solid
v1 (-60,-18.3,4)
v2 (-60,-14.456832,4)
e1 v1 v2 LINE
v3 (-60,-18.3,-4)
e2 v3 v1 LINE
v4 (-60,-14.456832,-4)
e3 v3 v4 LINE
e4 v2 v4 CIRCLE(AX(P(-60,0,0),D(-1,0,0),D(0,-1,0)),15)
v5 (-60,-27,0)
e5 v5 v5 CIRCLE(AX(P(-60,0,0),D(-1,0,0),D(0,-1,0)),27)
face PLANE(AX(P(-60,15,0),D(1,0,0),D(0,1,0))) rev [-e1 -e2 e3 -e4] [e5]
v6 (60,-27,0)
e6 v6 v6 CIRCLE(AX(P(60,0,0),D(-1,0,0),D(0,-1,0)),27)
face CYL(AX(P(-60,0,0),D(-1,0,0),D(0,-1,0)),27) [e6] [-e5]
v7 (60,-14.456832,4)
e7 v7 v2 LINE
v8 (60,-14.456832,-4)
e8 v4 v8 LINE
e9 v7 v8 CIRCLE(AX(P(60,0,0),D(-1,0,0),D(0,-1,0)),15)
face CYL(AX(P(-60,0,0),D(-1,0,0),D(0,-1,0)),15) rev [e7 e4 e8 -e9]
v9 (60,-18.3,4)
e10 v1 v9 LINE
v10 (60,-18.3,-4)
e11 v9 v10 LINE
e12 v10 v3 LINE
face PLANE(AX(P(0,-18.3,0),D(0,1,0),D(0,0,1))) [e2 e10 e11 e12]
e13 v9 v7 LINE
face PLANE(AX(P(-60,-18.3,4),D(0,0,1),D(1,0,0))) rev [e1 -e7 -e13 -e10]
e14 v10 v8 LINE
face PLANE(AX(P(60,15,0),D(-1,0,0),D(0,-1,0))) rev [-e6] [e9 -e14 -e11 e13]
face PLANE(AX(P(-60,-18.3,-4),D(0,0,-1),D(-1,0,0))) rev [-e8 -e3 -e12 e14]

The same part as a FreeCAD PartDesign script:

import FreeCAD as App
import Part
import Sketcher
from FreeCAD import Vector
Q = App.Units.Quantity


def add_polygon(sketch, points):
    """Adds a closed chain of lines whose ends are joined by coincident constraints."""
    first, n = sketch.GeometryCount, len(points)
    for a, b in zip(points, points[1:] + points[:1]):
        sketch.addGeometry(Part.LineSegment(App.Vector(*a, 0), App.Vector(*b, 0)), False)
    for i in range(n):
        sketch.addConstraint(Sketcher.Constraint("Coincident", first + i, 2, first + (i + 1) % n, 1))

doc = App.newDocument("Part")
body = doc.addObject("PartDesign::Body", "Body")

sketch1 = body.newObject("Sketcher::SketchObject", "Sketch")
sketch1.AttachmentSupport = (doc.getObject("XY_Plane"), [""])
sketch1.MapMode = "FlatFace"
add_polygon(sketch1, [(-60, 27), (-60, 15), (60, 15), (60, 27)])
sketch1.addConstraint([
    Sketcher.Constraint("Vertical", 0),
    Sketcher.Constraint("Horizontal", 1),
    Sketcher.Constraint("Vertical", 2),
    Sketcher.Constraint("Horizontal", 3),
    Sketcher.Constraint("DistanceX", 1, 1, 1, 2, Q("120 mm")),
    Sketcher.Constraint("DistanceY", 0, 2, 0, 1, Q("12 mm")),
    Sketcher.Constraint("DistanceX", 0, 2, -1, 1, Q("60 mm")),
    Sketcher.Constraint("DistanceY", -1, 1, 0, 2, Q("15 mm")),
])
revolution = body.newObject("PartDesign::Revolution", "Revolution")
revolution.Profile = sketch1
revolution.ReferenceAxis = (sketch1, ["H_Axis"])
revolution.Angle = 360

sketch2 = body.newObject("Sketcher::SketchObject", "Sketch001")
sketch2.AttachmentSupport = (doc.getObject("XZ_Plane"), [""])
sketch2.MapMode = "FlatFace"
add_polygon(sketch2, [(-60, -4), (-60, 4), (60, 4), (60, -4)])
sketch2.addConstraint([
    Sketcher.Constraint("Vertical", 0),
    Sketcher.Constraint("Horizontal", 1),
    Sketcher.Constraint("Vertical", 2),
    Sketcher.Constraint("Horizontal", 3),
    Sketcher.Constraint("Symmetric", 0, 2, 2, 2, -1, 1),
    Sketcher.Constraint("DistanceX", 1, 1, 1, 2, Q("120 mm")),
    Sketcher.Constraint("DistanceY", 0, 1, 0, 2, Q("8 mm")),
])
pocket1 = body.newObject("PartDesign::Pocket", "Pocket")
pocket1.Profile = sketch2
pocket1.Length = 18.3
pocket1.Reversed = True

doc.recompute()
